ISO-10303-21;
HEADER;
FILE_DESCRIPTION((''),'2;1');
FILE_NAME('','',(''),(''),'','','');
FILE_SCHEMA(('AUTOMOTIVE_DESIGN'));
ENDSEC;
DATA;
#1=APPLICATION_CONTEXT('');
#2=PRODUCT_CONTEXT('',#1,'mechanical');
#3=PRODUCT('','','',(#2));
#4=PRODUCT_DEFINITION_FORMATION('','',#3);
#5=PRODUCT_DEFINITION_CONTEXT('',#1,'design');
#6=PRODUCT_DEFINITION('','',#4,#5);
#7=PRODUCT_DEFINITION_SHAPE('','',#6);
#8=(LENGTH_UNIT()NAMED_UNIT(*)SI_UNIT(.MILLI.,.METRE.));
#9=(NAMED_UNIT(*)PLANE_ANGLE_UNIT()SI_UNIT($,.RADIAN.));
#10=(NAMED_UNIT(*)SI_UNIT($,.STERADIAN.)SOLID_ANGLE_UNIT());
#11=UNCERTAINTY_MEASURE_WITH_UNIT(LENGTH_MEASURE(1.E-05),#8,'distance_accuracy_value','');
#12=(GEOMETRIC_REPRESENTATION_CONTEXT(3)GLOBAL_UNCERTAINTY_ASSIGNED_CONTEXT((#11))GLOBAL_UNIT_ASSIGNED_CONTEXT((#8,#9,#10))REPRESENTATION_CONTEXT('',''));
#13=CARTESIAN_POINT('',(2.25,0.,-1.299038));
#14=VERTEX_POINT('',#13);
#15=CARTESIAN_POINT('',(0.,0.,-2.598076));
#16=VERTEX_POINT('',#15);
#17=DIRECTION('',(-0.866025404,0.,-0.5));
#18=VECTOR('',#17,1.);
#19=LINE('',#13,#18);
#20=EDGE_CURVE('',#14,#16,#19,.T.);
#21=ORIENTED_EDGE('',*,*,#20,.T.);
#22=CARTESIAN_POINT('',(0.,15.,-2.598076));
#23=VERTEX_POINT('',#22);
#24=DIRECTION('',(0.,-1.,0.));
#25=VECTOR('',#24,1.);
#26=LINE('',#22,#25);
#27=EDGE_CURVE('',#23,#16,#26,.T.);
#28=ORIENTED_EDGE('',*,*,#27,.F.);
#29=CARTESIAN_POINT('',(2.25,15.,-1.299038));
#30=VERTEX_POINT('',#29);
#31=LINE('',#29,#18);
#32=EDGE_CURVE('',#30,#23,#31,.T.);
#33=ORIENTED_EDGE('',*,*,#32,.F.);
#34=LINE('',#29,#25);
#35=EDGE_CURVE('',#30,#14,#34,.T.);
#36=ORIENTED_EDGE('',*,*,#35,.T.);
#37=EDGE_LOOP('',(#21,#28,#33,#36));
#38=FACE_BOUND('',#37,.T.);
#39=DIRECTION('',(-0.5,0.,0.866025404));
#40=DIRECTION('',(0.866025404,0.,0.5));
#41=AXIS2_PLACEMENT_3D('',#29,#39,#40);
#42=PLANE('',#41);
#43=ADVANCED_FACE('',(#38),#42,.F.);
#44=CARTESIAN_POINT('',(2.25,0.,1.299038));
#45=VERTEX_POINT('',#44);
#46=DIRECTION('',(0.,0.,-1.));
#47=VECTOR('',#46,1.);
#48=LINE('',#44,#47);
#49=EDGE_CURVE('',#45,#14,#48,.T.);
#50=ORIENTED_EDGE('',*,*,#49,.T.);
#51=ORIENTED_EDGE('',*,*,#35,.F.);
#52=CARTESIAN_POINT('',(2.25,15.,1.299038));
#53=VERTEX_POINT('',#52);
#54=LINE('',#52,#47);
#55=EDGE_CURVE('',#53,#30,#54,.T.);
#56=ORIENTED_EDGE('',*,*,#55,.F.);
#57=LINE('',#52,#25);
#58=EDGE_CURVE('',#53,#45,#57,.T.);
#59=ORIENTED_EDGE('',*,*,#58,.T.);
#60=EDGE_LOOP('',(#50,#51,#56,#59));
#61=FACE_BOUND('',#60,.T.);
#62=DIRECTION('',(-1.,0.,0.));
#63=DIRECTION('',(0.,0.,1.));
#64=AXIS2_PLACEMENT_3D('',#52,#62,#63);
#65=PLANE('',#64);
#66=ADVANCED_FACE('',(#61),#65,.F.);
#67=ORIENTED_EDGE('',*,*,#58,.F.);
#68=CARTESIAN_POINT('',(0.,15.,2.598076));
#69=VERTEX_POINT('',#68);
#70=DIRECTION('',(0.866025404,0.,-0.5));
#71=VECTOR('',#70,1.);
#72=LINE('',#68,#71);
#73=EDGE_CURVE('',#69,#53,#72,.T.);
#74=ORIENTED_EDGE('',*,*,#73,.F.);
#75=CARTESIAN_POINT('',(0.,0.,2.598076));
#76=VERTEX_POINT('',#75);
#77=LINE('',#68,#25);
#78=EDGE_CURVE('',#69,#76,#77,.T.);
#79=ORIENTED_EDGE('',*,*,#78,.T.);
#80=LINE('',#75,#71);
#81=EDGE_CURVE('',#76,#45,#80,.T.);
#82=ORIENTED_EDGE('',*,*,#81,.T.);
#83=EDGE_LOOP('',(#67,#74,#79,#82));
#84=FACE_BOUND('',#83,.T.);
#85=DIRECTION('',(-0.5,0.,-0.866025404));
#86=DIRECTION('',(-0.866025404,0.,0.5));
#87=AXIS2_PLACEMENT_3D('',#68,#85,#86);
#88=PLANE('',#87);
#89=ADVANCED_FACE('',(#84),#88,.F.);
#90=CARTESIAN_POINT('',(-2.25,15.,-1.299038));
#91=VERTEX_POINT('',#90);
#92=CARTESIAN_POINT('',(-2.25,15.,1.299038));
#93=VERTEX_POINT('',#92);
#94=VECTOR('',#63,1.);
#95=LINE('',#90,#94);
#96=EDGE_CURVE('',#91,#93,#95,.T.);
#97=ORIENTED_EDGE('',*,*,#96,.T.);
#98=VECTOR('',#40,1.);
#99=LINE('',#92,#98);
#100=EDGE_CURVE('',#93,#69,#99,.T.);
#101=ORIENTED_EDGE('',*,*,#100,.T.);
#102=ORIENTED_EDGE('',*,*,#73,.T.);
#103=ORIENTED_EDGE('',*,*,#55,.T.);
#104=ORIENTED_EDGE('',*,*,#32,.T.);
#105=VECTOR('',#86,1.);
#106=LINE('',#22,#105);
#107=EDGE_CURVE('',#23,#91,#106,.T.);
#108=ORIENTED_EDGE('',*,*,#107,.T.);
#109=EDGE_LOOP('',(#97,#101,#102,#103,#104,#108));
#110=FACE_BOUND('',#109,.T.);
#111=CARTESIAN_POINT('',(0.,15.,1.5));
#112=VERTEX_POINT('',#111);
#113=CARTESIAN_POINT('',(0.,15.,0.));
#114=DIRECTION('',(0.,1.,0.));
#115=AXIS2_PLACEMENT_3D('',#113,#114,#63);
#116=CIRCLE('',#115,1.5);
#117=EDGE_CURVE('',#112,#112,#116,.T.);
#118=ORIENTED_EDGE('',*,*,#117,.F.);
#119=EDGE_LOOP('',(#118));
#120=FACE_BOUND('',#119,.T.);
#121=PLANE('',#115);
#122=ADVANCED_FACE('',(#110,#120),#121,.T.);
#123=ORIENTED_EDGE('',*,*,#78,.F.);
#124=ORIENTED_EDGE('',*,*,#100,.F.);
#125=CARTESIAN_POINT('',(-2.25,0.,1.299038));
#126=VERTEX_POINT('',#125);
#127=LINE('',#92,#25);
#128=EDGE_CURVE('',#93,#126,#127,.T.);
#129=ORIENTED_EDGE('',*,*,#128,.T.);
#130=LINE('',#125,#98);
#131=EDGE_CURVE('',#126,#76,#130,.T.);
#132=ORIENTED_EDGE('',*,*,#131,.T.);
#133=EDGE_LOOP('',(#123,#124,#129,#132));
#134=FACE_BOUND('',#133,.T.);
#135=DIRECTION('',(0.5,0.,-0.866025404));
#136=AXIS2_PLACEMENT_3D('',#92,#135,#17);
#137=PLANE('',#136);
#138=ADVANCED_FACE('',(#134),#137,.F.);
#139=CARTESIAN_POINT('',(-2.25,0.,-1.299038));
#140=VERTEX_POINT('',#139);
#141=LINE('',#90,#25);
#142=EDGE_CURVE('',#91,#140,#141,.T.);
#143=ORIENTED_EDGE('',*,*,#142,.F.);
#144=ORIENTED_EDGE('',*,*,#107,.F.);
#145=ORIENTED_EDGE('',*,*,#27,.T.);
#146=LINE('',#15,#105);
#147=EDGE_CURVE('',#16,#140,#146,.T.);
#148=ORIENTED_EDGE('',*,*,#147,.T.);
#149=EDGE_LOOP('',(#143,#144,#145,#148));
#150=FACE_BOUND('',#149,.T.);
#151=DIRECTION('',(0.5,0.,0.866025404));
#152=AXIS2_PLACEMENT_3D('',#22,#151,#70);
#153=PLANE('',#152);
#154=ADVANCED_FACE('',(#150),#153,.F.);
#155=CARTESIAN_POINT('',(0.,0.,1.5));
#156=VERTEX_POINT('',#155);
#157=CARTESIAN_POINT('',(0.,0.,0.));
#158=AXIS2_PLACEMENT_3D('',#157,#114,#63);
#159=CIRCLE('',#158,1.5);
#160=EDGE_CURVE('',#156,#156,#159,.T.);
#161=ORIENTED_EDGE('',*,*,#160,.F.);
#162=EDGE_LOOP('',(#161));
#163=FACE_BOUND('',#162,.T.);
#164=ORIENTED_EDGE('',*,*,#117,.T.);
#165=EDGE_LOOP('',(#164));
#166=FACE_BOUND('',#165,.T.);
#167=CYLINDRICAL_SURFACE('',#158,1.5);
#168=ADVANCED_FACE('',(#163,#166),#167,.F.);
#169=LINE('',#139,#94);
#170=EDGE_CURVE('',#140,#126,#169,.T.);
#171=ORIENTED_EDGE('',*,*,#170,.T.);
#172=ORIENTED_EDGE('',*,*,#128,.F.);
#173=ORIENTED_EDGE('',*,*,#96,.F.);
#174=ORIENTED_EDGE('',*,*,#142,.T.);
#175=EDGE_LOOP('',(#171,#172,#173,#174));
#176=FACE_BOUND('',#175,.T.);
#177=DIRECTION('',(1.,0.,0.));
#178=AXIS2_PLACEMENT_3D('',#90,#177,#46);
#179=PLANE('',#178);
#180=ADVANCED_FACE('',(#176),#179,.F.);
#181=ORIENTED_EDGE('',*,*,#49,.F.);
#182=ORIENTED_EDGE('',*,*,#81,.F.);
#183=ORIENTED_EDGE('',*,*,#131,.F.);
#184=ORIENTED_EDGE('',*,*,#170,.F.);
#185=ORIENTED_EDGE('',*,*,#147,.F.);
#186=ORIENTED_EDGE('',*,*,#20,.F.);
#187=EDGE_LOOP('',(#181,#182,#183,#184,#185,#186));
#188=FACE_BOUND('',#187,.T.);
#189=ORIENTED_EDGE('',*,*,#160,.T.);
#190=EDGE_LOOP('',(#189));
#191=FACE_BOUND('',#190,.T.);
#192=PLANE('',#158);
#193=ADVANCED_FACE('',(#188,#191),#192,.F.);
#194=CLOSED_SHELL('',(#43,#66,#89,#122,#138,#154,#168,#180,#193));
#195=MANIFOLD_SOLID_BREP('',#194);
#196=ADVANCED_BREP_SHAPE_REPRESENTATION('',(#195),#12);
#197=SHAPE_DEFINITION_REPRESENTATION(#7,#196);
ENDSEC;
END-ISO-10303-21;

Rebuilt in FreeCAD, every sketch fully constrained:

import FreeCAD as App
import Part
import Sketcher
Q = App.Units.Quantity

doc = App.newDocument("Part")
body = doc.addObject("PartDesign::Body", "Body")

# Sketch on XZ plane
sketch1 = body.newObject("Sketcher::SketchObject", "Sketch")
sketch1.AttachmentSupport = (doc.getObject("XZ_Plane"), [""])
sketch1.MapMode = "FlatFace"
sketch1.addGeometry([
    Part.LineSegment(App.Vector(0, -2.598076, 0), App.Vector(-2.25, -1.299038, 0)),  # 0
    Part.LineSegment(App.Vector(-2.25, -1.299038, 0), App.Vector(-2.25, 1.299038, 0)),  # 1
    Part.LineSegment(App.Vector(-2.25, 1.299038, 0), App.Vector(0, 2.598076, 0)),  # 2
    Part.LineSegment(App.Vector(0, 2.598076, 0), App.Vector(2.25, 1.299038, 0)),  # 3
    Part.LineSegment(App.Vector(2.25, 1.299038, 0), App.Vector(2.25, -1.299038, 0)),  # 4
    Part.LineSegment(App.Vector(2.25, -1.299038, 0), App.Vector(0, -2.598076, 0)),  # 5
], False)
sketch1.addConstraint([
    Sketcher.Constraint("Coincident", 0, 2, 1, 1),
    Sketcher.Constraint("Coincident", 1, 2, 2, 1),
    Sketcher.Constraint("Coincident", 2, 2, 3, 1),
    Sketcher.Constraint("Coincident", 3, 2, 4, 1),
    Sketcher.Constraint("Coincident", 4, 2, 5, 1),
    Sketcher.Constraint("Coincident", 5, 2, 0, 1),
    Sketcher.Constraint("Vertical", 1),
    Sketcher.Constraint("Vertical", 4),
    Sketcher.Constraint("Symmetric", 0, 2, 3, 2, -1, 1),
    Sketcher.Constraint("Symmetric", 2, 2, 5, 2, -1, 1),
    Sketcher.Constraint("PointOnObject", 2, 2, -2),
    Sketcher.Constraint("Parallel", 2, 5),
    Sketcher.Constraint("Horizontal", 1, 2, 3, 2),
    Sketcher.Constraint("Angle", 0, Q("150 deg")),
    Sketcher.Constraint("DistanceX", 1, 2, 3, 2, Q("4.5 mm")),
    Sketcher.Constraint("DistanceY", 1, 1, 1, 2, Q("2.598076 mm")),
])
pad1 = body.newObject("PartDesign::Pad", "Pad")
pad1.Profile = sketch1
pad1.Length = 15
pad1.Reversed = True

# Sketch on XZ plane
sketch2 = body.newObject("Sketcher::SketchObject", "Sketch001")
sketch2.AttachmentSupport = (doc.getObject("XZ_Plane"), [""])
sketch2.MapMode = "FlatFace"
sketch2.AttachmentOffset = App.Placement(App.Vector(0, 0, -15), App.Rotation())
sketch2.addGeometry(Part.Circle(App.Vector(0, 0, 0), App.Vector(0, 0, 1), 1.5), False)
sketch2.addConstraint([
    Sketcher.Constraint("Coincident", 0, 3, -1, 1),
    Sketcher.Constraint("Diameter", 0, Q("3 mm")),
])
pocket1 = body.newObject("PartDesign::Pocket", "Pocket")
pocket1.Profile = sketch2
pocket1.Type = "ThroughAll"
pocket1.Reversed = True

doc.recompute()
